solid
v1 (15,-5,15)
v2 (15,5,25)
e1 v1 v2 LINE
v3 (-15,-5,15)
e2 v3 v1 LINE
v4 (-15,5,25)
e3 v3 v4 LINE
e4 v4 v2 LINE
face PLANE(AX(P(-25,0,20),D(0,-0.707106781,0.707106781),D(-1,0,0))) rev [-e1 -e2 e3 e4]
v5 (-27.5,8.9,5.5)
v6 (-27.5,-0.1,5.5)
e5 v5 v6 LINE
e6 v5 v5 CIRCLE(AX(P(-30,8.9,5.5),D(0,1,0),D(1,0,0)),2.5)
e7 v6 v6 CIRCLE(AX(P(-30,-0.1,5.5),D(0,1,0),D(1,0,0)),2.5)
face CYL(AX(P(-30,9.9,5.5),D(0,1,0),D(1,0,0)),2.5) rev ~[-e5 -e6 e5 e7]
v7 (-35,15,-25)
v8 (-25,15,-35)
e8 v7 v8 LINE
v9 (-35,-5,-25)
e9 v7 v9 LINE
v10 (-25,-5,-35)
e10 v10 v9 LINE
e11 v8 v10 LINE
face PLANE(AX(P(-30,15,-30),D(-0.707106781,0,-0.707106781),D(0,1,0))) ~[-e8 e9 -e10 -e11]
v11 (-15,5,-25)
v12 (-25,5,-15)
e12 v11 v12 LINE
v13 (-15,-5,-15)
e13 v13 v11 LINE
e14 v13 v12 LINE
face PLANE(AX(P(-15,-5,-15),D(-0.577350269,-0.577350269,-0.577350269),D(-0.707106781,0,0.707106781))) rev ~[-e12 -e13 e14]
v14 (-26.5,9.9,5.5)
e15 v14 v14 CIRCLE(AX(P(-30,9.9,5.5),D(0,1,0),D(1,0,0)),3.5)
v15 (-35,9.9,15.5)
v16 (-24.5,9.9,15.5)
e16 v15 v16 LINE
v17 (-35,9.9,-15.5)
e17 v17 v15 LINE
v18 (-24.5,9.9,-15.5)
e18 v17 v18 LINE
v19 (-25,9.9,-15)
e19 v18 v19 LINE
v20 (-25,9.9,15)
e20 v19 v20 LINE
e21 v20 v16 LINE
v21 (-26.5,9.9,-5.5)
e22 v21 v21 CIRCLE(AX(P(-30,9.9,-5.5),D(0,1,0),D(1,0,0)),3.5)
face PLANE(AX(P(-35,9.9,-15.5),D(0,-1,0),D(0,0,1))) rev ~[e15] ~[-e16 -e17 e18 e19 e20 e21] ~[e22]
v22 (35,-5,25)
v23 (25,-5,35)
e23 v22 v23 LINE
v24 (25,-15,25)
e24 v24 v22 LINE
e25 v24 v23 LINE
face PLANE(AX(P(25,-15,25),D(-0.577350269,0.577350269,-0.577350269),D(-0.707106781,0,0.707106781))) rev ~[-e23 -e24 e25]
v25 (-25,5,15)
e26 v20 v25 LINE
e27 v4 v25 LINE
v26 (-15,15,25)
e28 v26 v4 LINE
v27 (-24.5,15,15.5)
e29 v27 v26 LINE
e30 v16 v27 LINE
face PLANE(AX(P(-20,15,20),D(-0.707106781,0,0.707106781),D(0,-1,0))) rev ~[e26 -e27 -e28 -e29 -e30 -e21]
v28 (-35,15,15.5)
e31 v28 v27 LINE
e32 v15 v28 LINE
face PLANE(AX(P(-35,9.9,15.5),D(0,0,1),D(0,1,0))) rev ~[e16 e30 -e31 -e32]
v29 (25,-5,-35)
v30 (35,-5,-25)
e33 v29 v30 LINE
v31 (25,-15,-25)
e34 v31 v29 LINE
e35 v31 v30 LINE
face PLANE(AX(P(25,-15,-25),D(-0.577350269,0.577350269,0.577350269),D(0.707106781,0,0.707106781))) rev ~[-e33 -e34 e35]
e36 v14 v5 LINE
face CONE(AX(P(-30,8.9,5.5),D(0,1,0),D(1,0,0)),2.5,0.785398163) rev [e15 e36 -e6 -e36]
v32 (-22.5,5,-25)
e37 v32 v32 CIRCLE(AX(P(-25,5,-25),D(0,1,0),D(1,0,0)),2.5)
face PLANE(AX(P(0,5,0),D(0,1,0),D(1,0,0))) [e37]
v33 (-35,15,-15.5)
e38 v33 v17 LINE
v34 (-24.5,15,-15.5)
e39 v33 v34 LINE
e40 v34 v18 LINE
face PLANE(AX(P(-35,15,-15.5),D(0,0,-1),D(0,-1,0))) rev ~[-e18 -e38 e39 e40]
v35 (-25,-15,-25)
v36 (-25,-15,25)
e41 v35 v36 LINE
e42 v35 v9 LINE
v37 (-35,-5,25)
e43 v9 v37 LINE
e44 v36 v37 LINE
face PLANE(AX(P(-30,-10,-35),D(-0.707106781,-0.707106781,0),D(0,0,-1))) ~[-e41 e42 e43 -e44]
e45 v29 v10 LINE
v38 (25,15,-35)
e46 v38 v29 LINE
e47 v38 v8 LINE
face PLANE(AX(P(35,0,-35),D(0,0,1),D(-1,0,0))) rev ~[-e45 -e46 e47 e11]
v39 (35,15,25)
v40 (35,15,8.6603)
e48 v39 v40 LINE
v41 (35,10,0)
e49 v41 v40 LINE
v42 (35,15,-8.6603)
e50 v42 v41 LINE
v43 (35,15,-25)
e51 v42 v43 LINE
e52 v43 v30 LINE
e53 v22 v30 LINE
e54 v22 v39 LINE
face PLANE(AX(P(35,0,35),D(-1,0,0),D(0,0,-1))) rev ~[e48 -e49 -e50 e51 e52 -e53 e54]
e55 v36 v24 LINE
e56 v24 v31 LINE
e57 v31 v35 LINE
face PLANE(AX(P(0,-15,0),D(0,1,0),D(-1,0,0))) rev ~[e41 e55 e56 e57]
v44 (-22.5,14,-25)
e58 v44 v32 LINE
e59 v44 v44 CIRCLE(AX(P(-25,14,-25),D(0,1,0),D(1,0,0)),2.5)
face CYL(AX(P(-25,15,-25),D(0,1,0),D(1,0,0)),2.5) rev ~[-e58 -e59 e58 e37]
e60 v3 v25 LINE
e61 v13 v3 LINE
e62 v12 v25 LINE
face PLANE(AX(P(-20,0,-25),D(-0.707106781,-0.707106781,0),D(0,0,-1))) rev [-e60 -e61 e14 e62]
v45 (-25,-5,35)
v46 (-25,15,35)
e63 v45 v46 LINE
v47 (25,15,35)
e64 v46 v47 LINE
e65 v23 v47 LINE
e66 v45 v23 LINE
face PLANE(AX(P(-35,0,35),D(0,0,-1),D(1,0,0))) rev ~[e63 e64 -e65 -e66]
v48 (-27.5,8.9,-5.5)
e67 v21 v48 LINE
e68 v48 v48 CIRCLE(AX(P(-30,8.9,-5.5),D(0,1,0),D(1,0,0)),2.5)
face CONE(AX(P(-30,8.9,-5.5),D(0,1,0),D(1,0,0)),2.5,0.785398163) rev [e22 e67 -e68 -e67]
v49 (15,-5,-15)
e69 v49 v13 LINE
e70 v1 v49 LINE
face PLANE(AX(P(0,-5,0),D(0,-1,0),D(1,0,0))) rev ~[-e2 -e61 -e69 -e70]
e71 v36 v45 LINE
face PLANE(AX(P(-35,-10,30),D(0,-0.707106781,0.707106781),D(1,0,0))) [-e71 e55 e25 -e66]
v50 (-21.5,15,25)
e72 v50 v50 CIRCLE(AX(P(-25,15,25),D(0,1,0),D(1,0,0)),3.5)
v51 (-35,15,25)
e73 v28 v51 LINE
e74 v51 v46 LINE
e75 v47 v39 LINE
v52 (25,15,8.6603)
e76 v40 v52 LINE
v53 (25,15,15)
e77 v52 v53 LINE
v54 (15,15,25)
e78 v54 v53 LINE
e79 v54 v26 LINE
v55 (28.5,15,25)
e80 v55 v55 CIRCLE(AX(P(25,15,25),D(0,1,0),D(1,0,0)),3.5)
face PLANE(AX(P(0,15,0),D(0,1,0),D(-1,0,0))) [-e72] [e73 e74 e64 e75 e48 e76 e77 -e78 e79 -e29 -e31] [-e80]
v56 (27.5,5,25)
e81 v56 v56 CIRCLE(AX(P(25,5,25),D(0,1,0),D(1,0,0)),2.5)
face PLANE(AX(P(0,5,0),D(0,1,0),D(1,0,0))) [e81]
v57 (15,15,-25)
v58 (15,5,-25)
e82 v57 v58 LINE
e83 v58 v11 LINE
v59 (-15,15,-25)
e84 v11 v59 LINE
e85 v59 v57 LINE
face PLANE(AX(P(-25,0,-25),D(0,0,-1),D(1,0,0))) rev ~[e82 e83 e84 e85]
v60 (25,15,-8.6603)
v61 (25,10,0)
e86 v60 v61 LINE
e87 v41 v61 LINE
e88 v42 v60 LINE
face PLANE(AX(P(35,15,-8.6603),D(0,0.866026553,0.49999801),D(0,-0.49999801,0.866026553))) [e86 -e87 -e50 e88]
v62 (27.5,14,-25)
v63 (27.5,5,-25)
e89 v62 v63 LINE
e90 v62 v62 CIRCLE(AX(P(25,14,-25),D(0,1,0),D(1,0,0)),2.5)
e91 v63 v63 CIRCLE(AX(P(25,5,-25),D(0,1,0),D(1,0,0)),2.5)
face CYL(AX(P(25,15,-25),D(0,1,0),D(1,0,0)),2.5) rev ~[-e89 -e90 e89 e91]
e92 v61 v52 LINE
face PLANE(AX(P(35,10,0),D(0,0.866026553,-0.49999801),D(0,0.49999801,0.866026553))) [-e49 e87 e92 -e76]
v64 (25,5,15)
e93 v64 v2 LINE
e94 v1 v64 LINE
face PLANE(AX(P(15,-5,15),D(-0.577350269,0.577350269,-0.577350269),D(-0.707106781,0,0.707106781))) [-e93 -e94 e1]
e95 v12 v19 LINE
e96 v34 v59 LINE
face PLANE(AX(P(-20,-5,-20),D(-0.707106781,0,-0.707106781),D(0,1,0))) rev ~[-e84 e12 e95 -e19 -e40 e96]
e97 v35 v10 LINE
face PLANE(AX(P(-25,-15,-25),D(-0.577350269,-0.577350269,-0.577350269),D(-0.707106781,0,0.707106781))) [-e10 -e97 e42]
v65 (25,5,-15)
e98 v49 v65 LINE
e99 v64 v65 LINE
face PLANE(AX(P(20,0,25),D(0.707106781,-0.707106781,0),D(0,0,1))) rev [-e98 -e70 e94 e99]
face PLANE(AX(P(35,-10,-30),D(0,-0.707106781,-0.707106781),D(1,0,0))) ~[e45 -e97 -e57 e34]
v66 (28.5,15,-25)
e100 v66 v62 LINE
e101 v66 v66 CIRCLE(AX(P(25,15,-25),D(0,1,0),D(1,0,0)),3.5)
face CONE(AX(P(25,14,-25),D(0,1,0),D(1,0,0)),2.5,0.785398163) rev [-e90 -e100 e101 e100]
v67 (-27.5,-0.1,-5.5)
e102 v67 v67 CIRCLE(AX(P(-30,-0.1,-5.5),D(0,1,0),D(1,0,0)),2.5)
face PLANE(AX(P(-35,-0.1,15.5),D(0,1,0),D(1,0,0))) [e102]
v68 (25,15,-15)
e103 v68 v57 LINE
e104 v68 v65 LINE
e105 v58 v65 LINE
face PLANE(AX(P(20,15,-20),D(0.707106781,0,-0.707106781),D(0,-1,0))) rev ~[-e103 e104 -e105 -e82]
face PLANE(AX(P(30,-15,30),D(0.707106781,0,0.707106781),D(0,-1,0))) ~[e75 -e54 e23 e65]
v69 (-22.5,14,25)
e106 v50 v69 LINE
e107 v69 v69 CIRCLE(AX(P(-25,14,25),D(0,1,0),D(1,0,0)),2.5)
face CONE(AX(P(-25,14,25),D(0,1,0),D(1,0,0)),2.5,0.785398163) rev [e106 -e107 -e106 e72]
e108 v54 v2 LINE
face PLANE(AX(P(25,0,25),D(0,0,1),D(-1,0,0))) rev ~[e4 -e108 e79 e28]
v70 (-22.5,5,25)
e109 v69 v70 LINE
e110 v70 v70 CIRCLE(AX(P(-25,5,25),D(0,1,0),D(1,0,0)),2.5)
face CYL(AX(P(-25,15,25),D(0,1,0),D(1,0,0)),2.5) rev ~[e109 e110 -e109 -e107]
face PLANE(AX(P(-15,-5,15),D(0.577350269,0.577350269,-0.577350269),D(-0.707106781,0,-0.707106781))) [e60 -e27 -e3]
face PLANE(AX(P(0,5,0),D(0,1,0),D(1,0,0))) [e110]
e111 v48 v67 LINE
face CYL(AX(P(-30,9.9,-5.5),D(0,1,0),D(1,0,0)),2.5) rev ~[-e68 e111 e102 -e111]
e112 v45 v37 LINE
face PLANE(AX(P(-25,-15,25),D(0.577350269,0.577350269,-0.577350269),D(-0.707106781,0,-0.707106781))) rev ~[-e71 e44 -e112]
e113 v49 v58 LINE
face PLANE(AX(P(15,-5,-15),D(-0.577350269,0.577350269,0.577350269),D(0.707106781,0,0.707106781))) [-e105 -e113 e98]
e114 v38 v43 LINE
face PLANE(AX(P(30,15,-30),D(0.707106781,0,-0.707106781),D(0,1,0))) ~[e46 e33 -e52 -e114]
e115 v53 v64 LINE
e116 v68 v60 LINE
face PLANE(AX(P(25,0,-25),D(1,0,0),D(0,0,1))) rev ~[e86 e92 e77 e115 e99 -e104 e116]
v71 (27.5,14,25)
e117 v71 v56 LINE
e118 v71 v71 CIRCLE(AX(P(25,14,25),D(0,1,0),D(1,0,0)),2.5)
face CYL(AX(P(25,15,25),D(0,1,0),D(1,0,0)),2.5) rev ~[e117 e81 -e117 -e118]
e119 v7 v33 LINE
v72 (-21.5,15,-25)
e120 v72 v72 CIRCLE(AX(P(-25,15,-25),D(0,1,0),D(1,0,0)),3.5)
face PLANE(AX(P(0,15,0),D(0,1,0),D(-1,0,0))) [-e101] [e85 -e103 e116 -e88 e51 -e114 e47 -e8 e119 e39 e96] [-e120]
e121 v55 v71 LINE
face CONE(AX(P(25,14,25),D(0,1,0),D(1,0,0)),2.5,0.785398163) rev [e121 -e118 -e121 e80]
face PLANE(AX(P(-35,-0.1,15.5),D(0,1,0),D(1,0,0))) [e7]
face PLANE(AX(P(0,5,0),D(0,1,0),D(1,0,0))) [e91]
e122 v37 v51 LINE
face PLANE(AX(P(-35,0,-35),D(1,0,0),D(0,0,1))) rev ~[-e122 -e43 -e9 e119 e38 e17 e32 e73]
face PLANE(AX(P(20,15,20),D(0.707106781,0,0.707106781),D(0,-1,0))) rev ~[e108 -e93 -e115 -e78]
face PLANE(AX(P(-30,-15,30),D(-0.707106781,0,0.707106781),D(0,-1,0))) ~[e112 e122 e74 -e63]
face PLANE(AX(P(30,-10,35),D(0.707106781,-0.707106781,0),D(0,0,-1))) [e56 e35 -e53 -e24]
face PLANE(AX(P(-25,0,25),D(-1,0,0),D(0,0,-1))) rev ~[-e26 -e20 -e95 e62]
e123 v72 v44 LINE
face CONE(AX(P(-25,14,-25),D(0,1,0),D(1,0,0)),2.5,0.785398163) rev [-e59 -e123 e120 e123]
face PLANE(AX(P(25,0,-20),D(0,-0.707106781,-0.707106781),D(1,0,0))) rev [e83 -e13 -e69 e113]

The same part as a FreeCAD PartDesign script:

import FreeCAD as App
import Part
import Sketcher
from FreeCAD import Vector
Q = App.Units.Quantity


def edges_at(feature, points):
    """Names of the edges that pass closest to the given points."""
    edges = feature.Shape.Edges
    near = lambda p: min(range(len(edges)), key=lambda i: edges[i].distToShape(Part.Vertex(*p))[0])
    return sorted({f"Edge{near(p) + 1}" for p in points})


def add_polygon(sketch, points):
    """Adds a closed chain of lines whose ends are joined by coincident constraints."""
    first, n = sketch.GeometryCount, len(points)
    for a, b in zip(points, points[1:] + points[:1]):
        sketch.addGeometry(Part.LineSegment(App.Vector(*a, 0), App.Vector(*b, 0)), False)
    for i in range(n):
        sketch.addConstraint(Sketcher.Constraint("Coincident", first + i, 2, first + (i + 1) % n, 1))

doc = App.newDocument("Part")
body = doc.addObject("PartDesign::Body", "Body")

# Sketch on XZ plane
sketch1 = body.newObject("Sketcher::SketchObject", "Sketch")
sketch1.AttachmentSupport = (doc.getObject("XZ_Plane"), [""])
sketch1.MapMode = "FlatFace"
add_polygon(sketch1, [(-35, -35), (-35, 35), (35, 35), (35, -35)])  # lines 0-3
add_polygon(sketch1, [(-25, 25), (-25, -25), (25, -25), (25, 25)])  # lines 4-7
sketch1.addConstraint([
    Sketcher.Constraint("Vertical", 0),
    Sketcher.Constraint("Horizontal", 1),
    Sketcher.Constraint("Vertical", 2),
    Sketcher.Constraint("Horizontal", 3),
    Sketcher.Constraint("Vertical", 4),
    Sketcher.Constraint("Horizontal", 5),
    Sketcher.Constraint("Vertical", 6),
    Sketcher.Constraint("Horizontal", 7),
    Sketcher.Constraint("Symmetric", 0, 2, 2, 2, -1, 1),
    Sketcher.Constraint("Symmetric", 4, 2, 6, 2, -1, 1),
    Sketcher.Constraint("Equal", 3, 0),
    Sketcher.Constraint("Equal", 7, 4),
    Sketcher.Constraint("DistanceX", 5, 1, 5, 2, Q("50 mm")),
    Sketcher.Constraint("DistanceX", 3, 2, 4, 2, Q("10 mm")),
])
pad1 = body.newObject("PartDesign::Pad", "Pad")
pad1.Profile = sketch1
pad1.Length = 30
pad1.Midplane = True

# Sketch on XZ plane
sketch2 = body.newObject("Sketcher::SketchObject", "Sketch001")
sketch2.AttachmentSupport = (doc.getObject("XZ_Plane"), [""])
sketch2.MapMode = "FlatFace"
sketch2.AttachmentOffset = App.Placement(Vector(0, 0, 15), App.Rotation())
add_polygon(sketch2, [(-35, -35), (35, -35), (35, 35), (-35, 35)])  # lines 0-3
sketch2.addConstraint([
    Sketcher.Constraint("Horizontal", 0),
    Sketcher.Constraint("Vertical", 1),
    Sketcher.Constraint("Horizontal", 2),
    Sketcher.Constraint("Vertical", 3),
    Sketcher.Constraint("Symmetric", 0, 2, 2, 2, -1, 1),
    Sketcher.Constraint("Equal", 2, 1),
    Sketcher.Constraint("DistanceX", 0, 1, 0, 2, Q("70 mm")),
])
pad2 = body.newObject("PartDesign::Pad", "Pad001")
pad2.Profile = sketch2
pad2.Length = 10
pad2.Reversed = True
doc.recompute()

chamfer = body.newObject("PartDesign::Chamfer", "Chamfer")
chamfer.Base = (pad2, edges_at(pad2, [
    (35, 0, 35),
    (25, 5, 25),
    (-25, 5, 25),
    (-35, 0, 35),
    (-25, 5, -25),
    (25, 5, -25),
    (-35, 0, -35),
    (35, 0, -35),
    (0, -5, -25),
    (25, -5, 0),
    (0, -5, 25),
    (-25, -5, 0),
    (0, -15, -35),
    (35, -15, 0),
    (0, -15, 35),
    (-35, -15, 0),
]))
chamfer.Size = 10

# Sketch on YZ plane
sketch3 = body.newObject("Sketcher::SketchObject", "Sketch002")
sketch3.AttachmentSupport = (doc.getObject("YZ_Plane"), [""])
sketch3.MapMode = "FlatFace"
sketch3.AttachmentOffset = App.Placement(Vector(0, 0, 35), App.Rotation())
add_polygon(sketch3, [(15, -9), (25, -9), (30, 0), (25, 9), (15, 9), (10, 0)])  # lines 0-5
sketch3.addConstraint([
    Sketcher.Constraint("Horizontal", 0),
    Sketcher.Constraint("Horizontal", 3),
    Sketcher.Constraint("Symmetric", 0, 2, 2, 2, -1),
    Sketcher.Constraint("PointOnObject", 1, 2, -1),
    Sketcher.Constraint("PointOnObject", 4, 2, -1),
    Sketcher.Constraint("Parallel", 1, 4),
    Sketcher.Constraint("Parallel", 2, 5),
    Sketcher.Constraint("DistanceX", 0, 1, 0, 2, Q("10 mm")),
    Sketcher.Constraint("Distance", 1, Q("10 mm")),
    Sketcher.Constraint("DistanceX", -1, 1, 4, 2, Q("10 mm")),
    Sketcher.Constraint("DistanceX", 0, 2, 1, 2, Q("5 mm")),
])
pocket1 = body.newObject("PartDesign::Pocket", "Pocket")
pocket1.Profile = sketch3
pocket1.Length = 10

# Sketch on XZ plane
sketch4 = body.newObject("Sketcher::SketchObject", "Sketch003")
sketch4.AttachmentSupport = (doc.getObject("XZ_Plane"), [""])
sketch4.MapMode = "FlatFace"
sketch4.AttachmentOffset = App.Placement(Vector(0, 0, -15), App.Rotation())
sketch4.addGeometry([
    Part.Circle(Vector(-25, -25, 0), Vector(0, 0, 1), 2.5),
    Part.Circle(Vector(25, -25, 0), Vector(0, 0, 1), 2.5),
    Part.Circle(Vector(-25, 25, 0), Vector(0, 0, 1), 2.5),
    Part.Circle(Vector(25, 25, 0), Vector(0, 0, 1), 2.5),
], False)
sketch4.addConstraint([
    Sketcher.Constraint("Equal", 0, 1),
    Sketcher.Constraint("Equal", 1, 2),
    Sketcher.Constraint("Equal", 2, 3),
    Sketcher.Constraint("Symmetric", 1, 3, 2, 3, -1, 1),
    Sketcher.Constraint("Symmetric", 0, 3, 3, 3, -1, 1),
    Sketcher.Constraint("Symmetric", 0, 3, 1, 3, -2),
    Sketcher.Constraint("Diameter", 0, Q("5 mm")),
    Sketcher.Constraint("DistanceX", 0, 3, -1, 1, Q("25 mm")),
    Sketcher.Constraint("DistanceY", 0, 3, -1, 1, Q("25 mm")),
])
pocket2 = body.newObject("PartDesign::Pocket", "Pocket001")
pocket2.Profile = sketch4
pocket2.Length = 10
pocket2.Reversed = True

# Sketch on YZ plane
sketch5 = body.newObject("Sketcher::SketchObject", "Sketch004")
sketch5.AttachmentSupport = (doc.getObject("YZ_Plane"), [""])
sketch5.MapMode = "FlatFace"
sketch5.AttachmentOffset = App.Placement(Vector(0, 0, -35), App.Rotation())
add_polygon(sketch5, [(15, -16), (10, -16), (10, 16), (15, 16)])  # lines 0-3
sketch5.addConstraint([
    Sketcher.Constraint("Horizontal", 0),
    Sketcher.Constraint("Vertical", 1),
    Sketcher.Constraint("Horizontal", 2),
    Sketcher.Constraint("Vertical", 3),
    Sketcher.Constraint("DistanceY", 1, 1, 1, 2, Q("31 mm")),
    Sketcher.Constraint("DistanceX", 0, 2, 0, 1, Q("5.1 mm")),
    Sketcher.Constraint("DistanceX", -1, 1, 2, 2, Q("15 mm")),
    Sketcher.Constraint("DistanceY", 0, 2, -1, 1, Q("15.5 mm")),
])
pocket3 = body.newObject("PartDesign::Pocket", "Pocket002")
pocket3.Profile = sketch5
pocket3.Length = 12
pocket3.Reversed = True

# Sketch on XZ plane
sketch6 = body.newObject("Sketcher::SketchObject", "Sketch005")
sketch6.AttachmentSupport = (doc.getObject("XZ_Plane"), [""])
sketch6.MapMode = "FlatFace"
sketch6.AttachmentOffset = App.Placement(Vector(0, 0, -9.9), App.Rotation())
sketch6.addGeometry([
    Part.Circle(Vector(-30, -5.5, 0), Vector(0, 0, 1), 2.5),
    Part.Circle(Vector(-30, 5.5, 0), Vector(0, 0, 1), 2.5),
], False)
sketch6.addConstraint([
    Sketcher.Constraint("Equal", 0, 1),
    Sketcher.Constraint("Symmetric", 0, 3, 1, 3, -1),
    Sketcher.Constraint("Diameter", 0, Q("5 mm")),
    Sketcher.Constraint("DistanceX", 0, 3, -1, 1, Q("30 mm")),
    Sketcher.Constraint("DistanceY", 0, 3, 1, 3, Q("11 mm")),
])
pocket4 = body.newObject("PartDesign::Pocket", "Pocket003")
pocket4.Profile = sketch6
pocket4.Length = 10
pocket4.Reversed = True
doc.recompute()

chamfer2 = body.newObject("PartDesign::Chamfer", "Chamfer001")
chamfer2.Base = (pocket4, edges_at(pocket4, [
    (-32.5, 9.9, 5.5),
    (-32.5, 9.9, -5.5),
    (-27.5, 15, -25),
    (-27.5, 15, 25),
    (22.5, 15, 25),
    (22.5, 15, -25),
]))
chamfer2.Size = 1

doc.recompute()
